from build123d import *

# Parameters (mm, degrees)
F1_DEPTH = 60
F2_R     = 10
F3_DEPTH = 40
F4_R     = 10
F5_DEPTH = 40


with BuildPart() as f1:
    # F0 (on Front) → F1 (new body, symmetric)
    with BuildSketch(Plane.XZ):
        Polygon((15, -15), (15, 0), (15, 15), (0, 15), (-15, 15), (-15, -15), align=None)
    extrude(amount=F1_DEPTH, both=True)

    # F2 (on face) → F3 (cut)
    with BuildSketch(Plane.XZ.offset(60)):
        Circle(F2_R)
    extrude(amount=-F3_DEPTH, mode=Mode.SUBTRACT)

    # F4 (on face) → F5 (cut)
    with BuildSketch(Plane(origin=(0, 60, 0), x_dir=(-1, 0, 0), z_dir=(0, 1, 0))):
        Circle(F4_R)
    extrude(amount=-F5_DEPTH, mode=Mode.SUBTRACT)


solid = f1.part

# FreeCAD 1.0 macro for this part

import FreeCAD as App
import Part
import Sketcher
Q = App.Units.Quantity

doc = App.newDocument("Part")
body = doc.addObject("PartDesign::Body", "Body")

# Sketch on XZ plane
sketch1 = body.newObject("Sketcher::SketchObject", "Sketch")
sketch1.AttachmentSupport = (doc.getObject("XZ_Plane"), [""])
sketch1.MapMode = "FlatFace"
sketch1.addGeometry([
    Part.LineSegment(App.Vector(15, -15, 0), App.Vector(15, 15, 0)),
    Part.LineSegment(App.Vector(15, 15, 0), App.Vector(-15, 15, 0)),
    Part.LineSegment(App.Vector(-15, 15, 0), App.Vector(-15, -15, 0)),
    Part.LineSegment(App.Vector(-15, -15, 0), App.Vector(15, -15, 0)),
], False)
sketch1.addConstraint([
    Sketcher.Constraint("Coincident", 0, 2, 1, 1),
    Sketcher.Constraint("Coincident", 1, 2, 2, 1),
    Sketcher.Constraint("Coincident", 2, 2, 3, 1),
    Sketcher.Constraint("Coincident", 3, 2, 0, 1),
    Sketcher.Constraint("Vertical", 0),
    Sketcher.Constraint("Horizontal", 1),
    Sketcher.Constraint("Vertical", 2),
    Sketcher.Constraint("Horizontal", 3),
    Sketcher.Constraint("Symmetric", 0, 2, 2, 2, -1, 1),
    Sketcher.Constraint("Equal", 3, 0),
    Sketcher.Constraint("DistanceX", 1, 2, 1, 1, Q("30 mm")),
])
pad1 = body.newObject("PartDesign::Pad", "Pad")
pad1.Profile = sketch1
pad1.Length = 120
pad1.Midplane = True

# Sketch on XZ plane
sketch2 = body.newObject("Sketcher::SketchObject", "Sketch001")
sketch2.AttachmentSupport = (doc.getObject("XZ_Plane"), [""])
sketch2.MapMode = "FlatFace"
sketch2.AttachmentOffset = App.Placement(App.Vector(0, 0, 60), App.Rotation())
sketch2.addGeometry(Part.Circle(App.Vector(0, 0, 0), App.Vector(0, 0, 1), 10), False)
sketch2.addConstraint([
    Sketcher.Constraint("Coincident", 0, 3, -1, 1),
    Sketcher.Constraint("Diameter", 0, Q("20 mm")),
])
pocket1 = body.newObject("PartDesign::Pocket", "Pocket")
pocket1.Profile = sketch2
pocket1.Length = 40

# Sketch on XZ plane
sketch3 = body.newObject("Sketcher::SketchObject", "Sketch002")
sketch3.AttachmentSupport = (doc.getObject("XZ_Plane"), [""])
sketch3.MapMode = "FlatFace"
sketch3.AttachmentOffset = App.Placement(App.Vector(0, 0, -60), App.Rotation())
sketch3.addGeometry(Part.Circle(App.Vector(0, 0, 0), App.Vector(0, 0, 1), 10), False)
sketch3.addConstraint([
    Sketcher.Constraint("Coincident", 0, 3, -1, 1),
    Sketcher.Constraint("Diameter", 0, Q("20 mm")),
])
pocket2 = body.newObject("PartDesign::Pocket", "Pocket001")
pocket2.Profile = sketch3
pocket2.Length = 40
pocket2.Reversed = True

doc.recompute()
